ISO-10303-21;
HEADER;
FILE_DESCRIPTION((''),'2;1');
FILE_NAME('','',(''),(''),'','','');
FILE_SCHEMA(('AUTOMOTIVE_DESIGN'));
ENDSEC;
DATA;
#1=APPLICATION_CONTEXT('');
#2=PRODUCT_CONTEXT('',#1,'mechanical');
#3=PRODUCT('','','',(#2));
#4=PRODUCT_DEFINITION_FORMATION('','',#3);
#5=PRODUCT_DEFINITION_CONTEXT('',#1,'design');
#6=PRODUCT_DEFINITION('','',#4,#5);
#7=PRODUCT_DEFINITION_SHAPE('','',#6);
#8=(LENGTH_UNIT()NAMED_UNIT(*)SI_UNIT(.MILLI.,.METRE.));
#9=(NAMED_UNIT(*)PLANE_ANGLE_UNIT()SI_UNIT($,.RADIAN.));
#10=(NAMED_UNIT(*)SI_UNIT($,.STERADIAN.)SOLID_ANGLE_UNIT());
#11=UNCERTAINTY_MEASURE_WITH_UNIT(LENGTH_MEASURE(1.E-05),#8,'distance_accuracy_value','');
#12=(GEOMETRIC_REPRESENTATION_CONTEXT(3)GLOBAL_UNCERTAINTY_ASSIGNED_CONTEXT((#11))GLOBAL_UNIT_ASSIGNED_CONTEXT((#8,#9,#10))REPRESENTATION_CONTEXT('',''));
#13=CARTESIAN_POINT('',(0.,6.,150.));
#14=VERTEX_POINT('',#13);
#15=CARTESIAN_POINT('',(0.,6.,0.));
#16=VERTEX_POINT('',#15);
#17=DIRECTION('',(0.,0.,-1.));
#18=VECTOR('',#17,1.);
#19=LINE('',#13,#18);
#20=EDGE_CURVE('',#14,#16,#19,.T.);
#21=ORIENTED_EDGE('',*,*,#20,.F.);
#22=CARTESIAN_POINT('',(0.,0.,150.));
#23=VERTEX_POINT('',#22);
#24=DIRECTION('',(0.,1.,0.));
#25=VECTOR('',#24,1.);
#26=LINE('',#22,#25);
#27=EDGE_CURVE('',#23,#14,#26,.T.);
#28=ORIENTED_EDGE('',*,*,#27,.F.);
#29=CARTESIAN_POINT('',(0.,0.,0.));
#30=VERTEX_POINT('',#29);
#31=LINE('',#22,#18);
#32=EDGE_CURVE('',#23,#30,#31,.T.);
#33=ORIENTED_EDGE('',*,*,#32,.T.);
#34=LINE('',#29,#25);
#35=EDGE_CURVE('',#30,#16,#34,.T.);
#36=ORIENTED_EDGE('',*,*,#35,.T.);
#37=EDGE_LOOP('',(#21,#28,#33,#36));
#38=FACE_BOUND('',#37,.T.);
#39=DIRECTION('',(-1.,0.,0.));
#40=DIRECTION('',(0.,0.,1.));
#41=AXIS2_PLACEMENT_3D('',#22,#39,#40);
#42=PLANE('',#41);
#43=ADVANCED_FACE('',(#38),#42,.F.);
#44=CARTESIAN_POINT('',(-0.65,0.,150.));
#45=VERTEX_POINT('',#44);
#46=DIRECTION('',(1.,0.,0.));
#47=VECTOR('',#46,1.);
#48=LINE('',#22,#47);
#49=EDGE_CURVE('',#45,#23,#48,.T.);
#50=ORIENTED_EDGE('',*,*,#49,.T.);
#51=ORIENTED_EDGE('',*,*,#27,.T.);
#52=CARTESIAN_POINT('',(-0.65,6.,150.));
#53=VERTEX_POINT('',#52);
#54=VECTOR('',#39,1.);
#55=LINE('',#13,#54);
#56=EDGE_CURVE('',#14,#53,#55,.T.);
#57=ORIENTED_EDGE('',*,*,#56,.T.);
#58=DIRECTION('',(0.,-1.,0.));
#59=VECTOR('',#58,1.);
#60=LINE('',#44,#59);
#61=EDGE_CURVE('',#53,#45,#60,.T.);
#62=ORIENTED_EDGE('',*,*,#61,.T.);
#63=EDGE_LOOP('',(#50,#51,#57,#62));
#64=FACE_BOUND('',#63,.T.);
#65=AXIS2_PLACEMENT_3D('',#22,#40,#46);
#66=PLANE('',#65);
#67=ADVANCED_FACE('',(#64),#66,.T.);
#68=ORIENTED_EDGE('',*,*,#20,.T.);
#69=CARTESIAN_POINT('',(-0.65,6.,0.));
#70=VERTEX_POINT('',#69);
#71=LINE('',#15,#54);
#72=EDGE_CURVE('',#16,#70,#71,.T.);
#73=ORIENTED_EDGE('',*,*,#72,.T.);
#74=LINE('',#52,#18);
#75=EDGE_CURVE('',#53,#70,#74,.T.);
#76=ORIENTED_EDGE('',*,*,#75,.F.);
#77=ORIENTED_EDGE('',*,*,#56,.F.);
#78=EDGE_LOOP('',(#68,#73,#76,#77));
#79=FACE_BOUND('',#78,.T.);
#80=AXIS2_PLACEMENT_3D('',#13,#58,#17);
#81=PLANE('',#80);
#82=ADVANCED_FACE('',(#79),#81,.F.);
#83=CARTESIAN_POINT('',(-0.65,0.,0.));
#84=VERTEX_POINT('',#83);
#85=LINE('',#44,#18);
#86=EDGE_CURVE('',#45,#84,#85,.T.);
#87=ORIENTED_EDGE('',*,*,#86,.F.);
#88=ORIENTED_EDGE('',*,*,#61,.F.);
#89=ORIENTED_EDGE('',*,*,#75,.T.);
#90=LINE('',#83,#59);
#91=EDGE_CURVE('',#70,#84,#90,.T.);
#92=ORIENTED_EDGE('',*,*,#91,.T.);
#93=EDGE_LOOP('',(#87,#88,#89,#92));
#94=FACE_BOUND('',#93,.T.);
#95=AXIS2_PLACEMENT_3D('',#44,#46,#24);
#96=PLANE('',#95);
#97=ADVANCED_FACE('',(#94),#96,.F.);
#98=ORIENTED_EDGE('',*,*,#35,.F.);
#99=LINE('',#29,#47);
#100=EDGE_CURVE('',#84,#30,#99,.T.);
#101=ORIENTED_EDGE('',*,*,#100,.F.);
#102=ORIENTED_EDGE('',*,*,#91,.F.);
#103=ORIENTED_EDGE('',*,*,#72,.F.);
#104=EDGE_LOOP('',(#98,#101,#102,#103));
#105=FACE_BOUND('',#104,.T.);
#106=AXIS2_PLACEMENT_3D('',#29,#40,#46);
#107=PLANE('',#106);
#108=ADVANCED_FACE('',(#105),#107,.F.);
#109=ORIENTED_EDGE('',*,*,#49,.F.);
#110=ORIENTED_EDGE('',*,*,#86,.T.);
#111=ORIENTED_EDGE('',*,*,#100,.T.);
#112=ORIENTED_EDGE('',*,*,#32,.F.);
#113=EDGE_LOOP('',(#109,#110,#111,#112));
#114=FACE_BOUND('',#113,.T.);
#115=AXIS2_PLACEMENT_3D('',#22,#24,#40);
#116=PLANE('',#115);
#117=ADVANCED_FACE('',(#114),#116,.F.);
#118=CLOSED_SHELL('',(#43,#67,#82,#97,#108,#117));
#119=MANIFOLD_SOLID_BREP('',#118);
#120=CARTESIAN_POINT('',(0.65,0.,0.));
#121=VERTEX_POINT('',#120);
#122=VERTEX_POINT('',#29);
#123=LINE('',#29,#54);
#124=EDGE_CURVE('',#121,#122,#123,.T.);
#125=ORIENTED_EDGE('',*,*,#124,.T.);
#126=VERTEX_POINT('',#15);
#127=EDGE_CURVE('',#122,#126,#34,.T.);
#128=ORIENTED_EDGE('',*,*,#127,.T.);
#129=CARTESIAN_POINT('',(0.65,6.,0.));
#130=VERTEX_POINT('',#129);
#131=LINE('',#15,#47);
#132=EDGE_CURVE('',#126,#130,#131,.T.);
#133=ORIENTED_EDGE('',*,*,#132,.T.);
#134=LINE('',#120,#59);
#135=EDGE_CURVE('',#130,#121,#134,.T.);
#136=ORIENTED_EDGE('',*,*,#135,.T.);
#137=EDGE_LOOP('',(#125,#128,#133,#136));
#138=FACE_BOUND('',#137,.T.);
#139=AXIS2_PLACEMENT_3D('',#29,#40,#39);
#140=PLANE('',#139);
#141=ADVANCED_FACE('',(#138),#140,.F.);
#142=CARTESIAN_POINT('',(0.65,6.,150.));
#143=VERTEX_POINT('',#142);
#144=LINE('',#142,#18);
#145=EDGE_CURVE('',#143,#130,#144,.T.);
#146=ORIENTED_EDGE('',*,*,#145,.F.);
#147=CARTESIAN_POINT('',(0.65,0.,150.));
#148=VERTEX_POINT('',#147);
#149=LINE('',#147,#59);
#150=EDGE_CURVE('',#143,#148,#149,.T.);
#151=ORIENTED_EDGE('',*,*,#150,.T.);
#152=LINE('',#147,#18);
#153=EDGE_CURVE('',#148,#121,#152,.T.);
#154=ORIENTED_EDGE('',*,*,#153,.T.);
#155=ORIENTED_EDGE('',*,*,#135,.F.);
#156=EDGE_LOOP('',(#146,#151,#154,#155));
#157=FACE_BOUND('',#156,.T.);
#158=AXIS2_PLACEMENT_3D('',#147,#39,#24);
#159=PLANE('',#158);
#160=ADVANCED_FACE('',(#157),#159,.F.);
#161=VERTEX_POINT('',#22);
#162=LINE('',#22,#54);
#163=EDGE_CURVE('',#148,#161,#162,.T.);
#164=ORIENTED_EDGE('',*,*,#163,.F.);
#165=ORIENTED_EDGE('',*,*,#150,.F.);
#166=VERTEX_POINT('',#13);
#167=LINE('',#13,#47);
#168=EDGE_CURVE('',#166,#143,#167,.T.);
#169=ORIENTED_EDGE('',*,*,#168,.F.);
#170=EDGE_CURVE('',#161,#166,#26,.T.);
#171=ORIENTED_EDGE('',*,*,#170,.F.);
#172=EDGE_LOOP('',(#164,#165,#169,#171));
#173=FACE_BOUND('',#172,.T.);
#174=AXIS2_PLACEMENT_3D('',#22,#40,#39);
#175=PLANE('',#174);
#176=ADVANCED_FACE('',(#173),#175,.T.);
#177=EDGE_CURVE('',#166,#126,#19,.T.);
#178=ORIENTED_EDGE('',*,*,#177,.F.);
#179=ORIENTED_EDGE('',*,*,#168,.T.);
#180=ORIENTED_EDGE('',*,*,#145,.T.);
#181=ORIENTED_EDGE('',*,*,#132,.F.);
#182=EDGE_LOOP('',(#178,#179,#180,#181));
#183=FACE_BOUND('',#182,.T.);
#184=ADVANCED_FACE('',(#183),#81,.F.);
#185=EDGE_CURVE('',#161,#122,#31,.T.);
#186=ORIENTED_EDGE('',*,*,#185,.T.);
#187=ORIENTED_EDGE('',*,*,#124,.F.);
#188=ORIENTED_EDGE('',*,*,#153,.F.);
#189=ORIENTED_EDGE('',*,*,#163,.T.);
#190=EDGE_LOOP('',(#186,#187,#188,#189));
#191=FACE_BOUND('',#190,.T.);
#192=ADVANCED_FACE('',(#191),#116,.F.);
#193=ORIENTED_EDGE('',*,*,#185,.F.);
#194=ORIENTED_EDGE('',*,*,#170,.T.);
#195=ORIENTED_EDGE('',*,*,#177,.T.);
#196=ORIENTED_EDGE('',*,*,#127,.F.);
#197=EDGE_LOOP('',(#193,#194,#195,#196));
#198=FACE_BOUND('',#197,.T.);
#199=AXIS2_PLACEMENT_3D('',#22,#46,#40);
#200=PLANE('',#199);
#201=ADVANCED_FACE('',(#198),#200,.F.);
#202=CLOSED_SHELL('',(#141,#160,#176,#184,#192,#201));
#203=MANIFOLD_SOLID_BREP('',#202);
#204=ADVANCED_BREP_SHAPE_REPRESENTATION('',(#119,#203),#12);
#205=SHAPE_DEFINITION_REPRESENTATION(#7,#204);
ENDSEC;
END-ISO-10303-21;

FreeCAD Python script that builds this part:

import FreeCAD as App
import Part
import Sketcher

V = App.Vector


def add_polygon(sketch, points):
    """Adds a closed chain of lines whose ends are joined by coincident constraints."""
    first, n = sketch.GeometryCount, len(points)
    for a, b in zip(points, points[1:] + points[:1]):
        sketch.addGeometry(Part.LineSegment(App.Vector(*a, 0), App.Vector(*b, 0)), False)
    for i in range(n):
        sketch.addConstraint(Sketcher.Constraint("Coincident", first + i, 2, first + (i + 1) % n, 1))

doc = App.newDocument("Part")
body = doc.addObject("PartDesign::Body", "Body")

# Sketch on XY plane
sketch1 = body.newObject("Sketcher::SketchObject", "Sketch")
sketch1.AttachmentSupport = (doc.getObject("XY_Plane"), [""])
sketch1.MapMode = "FlatFace"
add_polygon(sketch1, [(-0.7, 6), (-0.7, 0), (0, 0), (0, 6)])  # lines 0-3
sketch1.addConstraint(Sketcher.Constraint("Vertical", 0))
sketch1.addConstraint(Sketcher.Constraint("Horizontal", 1))
sketch1.addConstraint(Sketcher.Constraint("Vertical", 2))
sketch1.addConstraint(Sketcher.Constraint("Horizontal", 3))
sketch1.addConstraint(Sketcher.Constraint("Coincident", 1, 2, -1, 1))
sketch1.addConstraint(Sketcher.Constraint("DistanceY", 0, 2, 0, 1, 6.0))
sketch1.addConstraint(Sketcher.Constraint("DistanceX", 1, 1, 1, 2, 0.65))
pad1 = body.newObject("PartDesign::Pad", "Pad")
pad1.Profile = sketch1
pad1.Length = 150
body2 = doc.addObject("PartDesign::Body", "Body001")
doc.recompute()

mirroring = doc.addObject("Part::Mirroring", "Mirroring")
mirroring.Source = body
mirroring.Base = V(0, 0, 150)
mirroring.Normal = V(-1, 0, 0)
body2.BaseFeature = mirroring
doc.recompute()
mirroring.Visibility = False

doc.recompute()
